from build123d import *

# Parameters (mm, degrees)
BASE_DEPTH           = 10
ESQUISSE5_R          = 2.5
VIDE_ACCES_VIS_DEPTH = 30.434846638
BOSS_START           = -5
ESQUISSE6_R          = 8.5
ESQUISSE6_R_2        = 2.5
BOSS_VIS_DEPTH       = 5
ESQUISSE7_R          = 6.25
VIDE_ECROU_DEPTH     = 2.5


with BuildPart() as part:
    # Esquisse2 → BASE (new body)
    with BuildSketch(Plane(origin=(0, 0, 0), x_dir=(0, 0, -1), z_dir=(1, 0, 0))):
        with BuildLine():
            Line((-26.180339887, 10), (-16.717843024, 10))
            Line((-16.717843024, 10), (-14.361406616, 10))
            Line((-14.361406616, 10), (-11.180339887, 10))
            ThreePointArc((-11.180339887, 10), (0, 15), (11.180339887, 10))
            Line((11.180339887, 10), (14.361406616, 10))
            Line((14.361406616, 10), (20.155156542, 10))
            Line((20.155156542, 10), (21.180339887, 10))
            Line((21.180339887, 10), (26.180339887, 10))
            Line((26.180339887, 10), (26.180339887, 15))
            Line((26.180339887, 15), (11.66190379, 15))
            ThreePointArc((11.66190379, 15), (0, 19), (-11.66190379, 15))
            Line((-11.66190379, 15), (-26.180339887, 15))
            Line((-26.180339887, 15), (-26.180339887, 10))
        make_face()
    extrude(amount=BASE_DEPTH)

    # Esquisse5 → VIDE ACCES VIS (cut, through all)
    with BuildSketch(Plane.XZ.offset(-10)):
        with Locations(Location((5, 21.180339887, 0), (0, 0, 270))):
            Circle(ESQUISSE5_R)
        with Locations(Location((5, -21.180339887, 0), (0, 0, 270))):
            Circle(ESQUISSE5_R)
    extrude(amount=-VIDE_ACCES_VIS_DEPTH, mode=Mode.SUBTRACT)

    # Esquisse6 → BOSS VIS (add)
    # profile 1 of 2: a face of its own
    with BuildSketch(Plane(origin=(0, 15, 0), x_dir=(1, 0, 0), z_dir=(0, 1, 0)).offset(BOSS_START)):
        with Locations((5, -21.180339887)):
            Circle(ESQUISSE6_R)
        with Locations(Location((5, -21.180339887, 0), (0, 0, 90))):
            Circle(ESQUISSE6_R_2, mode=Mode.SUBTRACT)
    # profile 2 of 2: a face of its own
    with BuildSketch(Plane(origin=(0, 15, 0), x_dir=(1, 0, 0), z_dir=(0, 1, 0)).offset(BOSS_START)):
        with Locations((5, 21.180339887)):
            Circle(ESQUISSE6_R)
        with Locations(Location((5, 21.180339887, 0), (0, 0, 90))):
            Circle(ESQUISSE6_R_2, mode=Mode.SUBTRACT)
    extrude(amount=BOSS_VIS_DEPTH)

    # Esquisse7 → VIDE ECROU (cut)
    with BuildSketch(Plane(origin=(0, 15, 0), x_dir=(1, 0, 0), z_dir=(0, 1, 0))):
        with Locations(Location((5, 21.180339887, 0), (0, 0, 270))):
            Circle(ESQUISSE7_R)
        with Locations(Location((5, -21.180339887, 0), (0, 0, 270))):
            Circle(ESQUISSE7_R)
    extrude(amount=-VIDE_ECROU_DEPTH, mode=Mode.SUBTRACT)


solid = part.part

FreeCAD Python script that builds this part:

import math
import FreeCAD as App
import Part
import Sketcher
from FreeCAD import Vector
Q = App.Units.Quantity

doc = App.newDocument("Part")
body = doc.addObject("PartDesign::Body", "Body")

# Sketch on YZ plane
sketch1 = body.newObject("Sketcher::SketchObject", "Sketch")
sketch1.AttachmentSupport = (doc.getObject("YZ_Plane"), [""])
sketch1.MapMode = "FlatFace"
sketch1.addGeometry(Part.LineSegment(Vector(10, 26, 0), Vector(10, 11, 0)), False)
sketch1.addGeometry(Part.ArcOfCircle(Part.Circle(Vector(0, 0, 0), Vector(0, 0, 1), 15), math.radians(-48), math.radians(48)), False)
sketch1.addGeometry(Part.LineSegment(Vector(10, -11, 0), Vector(10, -26, 0)), False)
sketch1.addGeometry(Part.LineSegment(Vector(10, -26, 0), Vector(15, -26, 0)), False)
sketch1.addGeometry(Part.LineSegment(Vector(15, -26, 0), Vector(15, -12, 0)), False)
sketch1.addGeometry(Part.ArcOfCircle(Part.Circle(Vector(0, 0, 0), Vector(0, 0, 1), 19), math.radians(-38), math.radians(38)), False)
sketch1.addGeometry(Part.LineSegment(Vector(15, 12, 0), Vector(15, 26, 0)), False)
sketch1.addGeometry(Part.LineSegment(Vector(15, 26, 0), Vector(10, 26, 0)), False)
sketch1.addConstraint(Sketcher.Constraint("Coincident", 0, 2, 1, 2))
sketch1.addConstraint(Sketcher.Constraint("Coincident", 1, 1, 2, 1))
sketch1.addConstraint(Sketcher.Constraint("Coincident", 2, 2, 3, 1))
sketch1.addConstraint(Sketcher.Constraint("Coincident", 3, 2, 4, 1))
sketch1.addConstraint(Sketcher.Constraint("Coincident", 4, 2, 5, 1))
sketch1.addConstraint(Sketcher.Constraint("Coincident", 5, 2, 6, 1))
sketch1.addConstraint(Sketcher.Constraint("Coincident", 6, 2, 7, 1))
sketch1.addConstraint(Sketcher.Constraint("Coincident", 7, 2, 0, 1))
sketch1.addConstraint(Sketcher.Constraint("Vertical", 0))
sketch1.addConstraint(Sketcher.Constraint("Vertical", 2))
sketch1.addConstraint(Sketcher.Constraint("Horizontal", 3))
sketch1.addConstraint(Sketcher.Constraint("Vertical", 4))
sketch1.addConstraint(Sketcher.Constraint("Vertical", 6))
sketch1.addConstraint(Sketcher.Constraint("Horizontal", 7))
sketch1.addConstraint(Sketcher.Constraint("Coincident", 1, 3, -1, 1))
sketch1.addConstraint(Sketcher.Constraint("Coincident", 5, 3, -1, 1))
sketch1.addConstraint(Sketcher.Constraint("Symmetric", 3, 2, 6, 2, -1))
sketch1.addConstraint(Sketcher.Constraint("Vertical", 0, 2, 1, 1))
sketch1.addConstraint(Sketcher.Constraint("Radius", 1, Q("15 mm")))
sketch1.addConstraint(Sketcher.Constraint("Radius", 5, Q("19 mm")))
sketch1.addConstraint(Sketcher.Constraint("DistanceX", 3, 1, 3, 2, Q("5 mm")))
sketch1.addConstraint(Sketcher.Constraint("DistanceY", 0, 2, 0, 1, Q("15 mm")))
sketch1.addConstraint(Sketcher.Constraint("DistanceX", -1, 1, 0, 2, Q("10 mm")))
pad1 = body.newObject("PartDesign::Pad", "Pad")
pad1.Profile = sketch1
pad1.Length = 10

# Sketch on XZ plane
sketch2 = body.newObject("Sketcher::SketchObject", "Sketch001")
sketch2.AttachmentSupport = (doc.getObject("XZ_Plane"), [""])
sketch2.MapMode = "FlatFace"
sketch2.AttachmentOffset = App.Placement(Vector(0, 0, -10), App.Rotation())
sketch2.addGeometry(Part.Circle(Vector(5, 21.2, 0), Vector(0, 0, 1), 2.5), False)
sketch2.addGeometry(Part.Circle(Vector(5, -21.2, 0), Vector(0, 0, 1), 2.5), False)
sketch2.addConstraint(Sketcher.Constraint("Equal", 0, 1))
sketch2.addConstraint(Sketcher.Constraint("Symmetric", 0, 3, 1, 3, -1))
sketch2.addConstraint(Sketcher.Constraint("Diameter", 0, Q("5 mm")))
sketch2.addConstraint(Sketcher.Constraint("DistanceX", -1, 1, 0, 3, Q("5 mm")))
sketch2.addConstraint(Sketcher.Constraint("DistanceY", -1, 1, 0, 3, Q("21.18034 mm")))
pocket1 = body.newObject("PartDesign::Pocket", "Pocket")
pocket1.Profile = sketch2
pocket1.Type = "ThroughAll"

# Sketch on XZ plane
sketch3 = body.newObject("Sketcher::SketchObject", "Sketch002")
sketch3.AttachmentSupport = (doc.getObject("XZ_Plane"), [""])
sketch3.MapMode = "FlatFace"
sketch3.AttachmentOffset = App.Placement(Vector(0, 0, -10), App.Rotation())
sketch3.addGeometry(Part.Circle(Vector(5, 21.2, 0), Vector(0, 0, 1), 8.5), False)
sketch3.addGeometry(Part.Circle(Vector(5, 21.2, 0), Vector(0, 0, 1), 2.5), False)
sketch3.addGeometry(Part.Circle(Vector(5, -21.2, 0), Vector(0, 0, 1), 8.5), False)
sketch3.addGeometry(Part.Circle(Vector(5, -21.2, 0), Vector(0, 0, 1), 2.5), False)
sketch3.addConstraint(Sketcher.Constraint("Coincident", 1, 3, 0, 3))
sketch3.addConstraint(Sketcher.Constraint("Coincident", 3, 3, 2, 3))
sketch3.addConstraint(Sketcher.Constraint("Equal", 0, 2))
sketch3.addConstraint(Sketcher.Constraint("Equal", 1, 3))
sketch3.addConstraint(Sketcher.Constraint("Symmetric", 0, 3, 2, 3, -1))
sketch3.addConstraint(Sketcher.Constraint("Diameter", 0, Q("17 mm")))
sketch3.addConstraint(Sketcher.Constraint("Diameter", 1, Q("5 mm")))
sketch3.addConstraint(Sketcher.Constraint("DistanceX", -1, 1, 0, 3, Q("5 mm")))
sketch3.addConstraint(Sketcher.Constraint("DistanceY", -1, 1, 0, 3, Q("21.18034 mm")))
pad2 = body.newObject("PartDesign::Pad", "Pad001")
pad2.Profile = sketch3
pad2.Length = 5
pad2.Reversed = True

# Sketch on XZ plane
sketch4 = body.newObject("Sketcher::SketchObject", "Sketch003")
sketch4.AttachmentSupport = (doc.getObject("XZ_Plane"), [""])
sketch4.MapMode = "FlatFace"
sketch4.AttachmentOffset = App.Placement(Vector(0, 0, -15), App.Rotation())
sketch4.addGeometry(Part.Circle(Vector(5, -21, 0), Vector(0, 0, 1), 6), False)
sketch4.addGeometry(Part.Circle(Vector(5, 21, 0), Vector(0, 0, 1), 6), False)
sketch4.addConstraint(Sketcher.Constraint("Equal", 0, 1))
sketch4.addConstraint(Sketcher.Constraint("Symmetric", 0, 3, 1, 3, -1))
sketch4.addConstraint(Sketcher.Constraint("Diameter", 0, Q("12.5 mm")))
sketch4.addConstraint(Sketcher.Constraint("DistanceX", -1, 1, 0, 3, Q("5 mm")))
sketch4.addConstraint(Sketcher.Constraint("DistanceY", 0, 3, -1, 1, Q("21.18034 mm")))
pocket2 = body.newObject("PartDesign::Pocket", "Pocket001")
pocket2.Profile = sketch4
pocket2.Length = 2.5
pocket2.Reversed = True

doc.recompute()
